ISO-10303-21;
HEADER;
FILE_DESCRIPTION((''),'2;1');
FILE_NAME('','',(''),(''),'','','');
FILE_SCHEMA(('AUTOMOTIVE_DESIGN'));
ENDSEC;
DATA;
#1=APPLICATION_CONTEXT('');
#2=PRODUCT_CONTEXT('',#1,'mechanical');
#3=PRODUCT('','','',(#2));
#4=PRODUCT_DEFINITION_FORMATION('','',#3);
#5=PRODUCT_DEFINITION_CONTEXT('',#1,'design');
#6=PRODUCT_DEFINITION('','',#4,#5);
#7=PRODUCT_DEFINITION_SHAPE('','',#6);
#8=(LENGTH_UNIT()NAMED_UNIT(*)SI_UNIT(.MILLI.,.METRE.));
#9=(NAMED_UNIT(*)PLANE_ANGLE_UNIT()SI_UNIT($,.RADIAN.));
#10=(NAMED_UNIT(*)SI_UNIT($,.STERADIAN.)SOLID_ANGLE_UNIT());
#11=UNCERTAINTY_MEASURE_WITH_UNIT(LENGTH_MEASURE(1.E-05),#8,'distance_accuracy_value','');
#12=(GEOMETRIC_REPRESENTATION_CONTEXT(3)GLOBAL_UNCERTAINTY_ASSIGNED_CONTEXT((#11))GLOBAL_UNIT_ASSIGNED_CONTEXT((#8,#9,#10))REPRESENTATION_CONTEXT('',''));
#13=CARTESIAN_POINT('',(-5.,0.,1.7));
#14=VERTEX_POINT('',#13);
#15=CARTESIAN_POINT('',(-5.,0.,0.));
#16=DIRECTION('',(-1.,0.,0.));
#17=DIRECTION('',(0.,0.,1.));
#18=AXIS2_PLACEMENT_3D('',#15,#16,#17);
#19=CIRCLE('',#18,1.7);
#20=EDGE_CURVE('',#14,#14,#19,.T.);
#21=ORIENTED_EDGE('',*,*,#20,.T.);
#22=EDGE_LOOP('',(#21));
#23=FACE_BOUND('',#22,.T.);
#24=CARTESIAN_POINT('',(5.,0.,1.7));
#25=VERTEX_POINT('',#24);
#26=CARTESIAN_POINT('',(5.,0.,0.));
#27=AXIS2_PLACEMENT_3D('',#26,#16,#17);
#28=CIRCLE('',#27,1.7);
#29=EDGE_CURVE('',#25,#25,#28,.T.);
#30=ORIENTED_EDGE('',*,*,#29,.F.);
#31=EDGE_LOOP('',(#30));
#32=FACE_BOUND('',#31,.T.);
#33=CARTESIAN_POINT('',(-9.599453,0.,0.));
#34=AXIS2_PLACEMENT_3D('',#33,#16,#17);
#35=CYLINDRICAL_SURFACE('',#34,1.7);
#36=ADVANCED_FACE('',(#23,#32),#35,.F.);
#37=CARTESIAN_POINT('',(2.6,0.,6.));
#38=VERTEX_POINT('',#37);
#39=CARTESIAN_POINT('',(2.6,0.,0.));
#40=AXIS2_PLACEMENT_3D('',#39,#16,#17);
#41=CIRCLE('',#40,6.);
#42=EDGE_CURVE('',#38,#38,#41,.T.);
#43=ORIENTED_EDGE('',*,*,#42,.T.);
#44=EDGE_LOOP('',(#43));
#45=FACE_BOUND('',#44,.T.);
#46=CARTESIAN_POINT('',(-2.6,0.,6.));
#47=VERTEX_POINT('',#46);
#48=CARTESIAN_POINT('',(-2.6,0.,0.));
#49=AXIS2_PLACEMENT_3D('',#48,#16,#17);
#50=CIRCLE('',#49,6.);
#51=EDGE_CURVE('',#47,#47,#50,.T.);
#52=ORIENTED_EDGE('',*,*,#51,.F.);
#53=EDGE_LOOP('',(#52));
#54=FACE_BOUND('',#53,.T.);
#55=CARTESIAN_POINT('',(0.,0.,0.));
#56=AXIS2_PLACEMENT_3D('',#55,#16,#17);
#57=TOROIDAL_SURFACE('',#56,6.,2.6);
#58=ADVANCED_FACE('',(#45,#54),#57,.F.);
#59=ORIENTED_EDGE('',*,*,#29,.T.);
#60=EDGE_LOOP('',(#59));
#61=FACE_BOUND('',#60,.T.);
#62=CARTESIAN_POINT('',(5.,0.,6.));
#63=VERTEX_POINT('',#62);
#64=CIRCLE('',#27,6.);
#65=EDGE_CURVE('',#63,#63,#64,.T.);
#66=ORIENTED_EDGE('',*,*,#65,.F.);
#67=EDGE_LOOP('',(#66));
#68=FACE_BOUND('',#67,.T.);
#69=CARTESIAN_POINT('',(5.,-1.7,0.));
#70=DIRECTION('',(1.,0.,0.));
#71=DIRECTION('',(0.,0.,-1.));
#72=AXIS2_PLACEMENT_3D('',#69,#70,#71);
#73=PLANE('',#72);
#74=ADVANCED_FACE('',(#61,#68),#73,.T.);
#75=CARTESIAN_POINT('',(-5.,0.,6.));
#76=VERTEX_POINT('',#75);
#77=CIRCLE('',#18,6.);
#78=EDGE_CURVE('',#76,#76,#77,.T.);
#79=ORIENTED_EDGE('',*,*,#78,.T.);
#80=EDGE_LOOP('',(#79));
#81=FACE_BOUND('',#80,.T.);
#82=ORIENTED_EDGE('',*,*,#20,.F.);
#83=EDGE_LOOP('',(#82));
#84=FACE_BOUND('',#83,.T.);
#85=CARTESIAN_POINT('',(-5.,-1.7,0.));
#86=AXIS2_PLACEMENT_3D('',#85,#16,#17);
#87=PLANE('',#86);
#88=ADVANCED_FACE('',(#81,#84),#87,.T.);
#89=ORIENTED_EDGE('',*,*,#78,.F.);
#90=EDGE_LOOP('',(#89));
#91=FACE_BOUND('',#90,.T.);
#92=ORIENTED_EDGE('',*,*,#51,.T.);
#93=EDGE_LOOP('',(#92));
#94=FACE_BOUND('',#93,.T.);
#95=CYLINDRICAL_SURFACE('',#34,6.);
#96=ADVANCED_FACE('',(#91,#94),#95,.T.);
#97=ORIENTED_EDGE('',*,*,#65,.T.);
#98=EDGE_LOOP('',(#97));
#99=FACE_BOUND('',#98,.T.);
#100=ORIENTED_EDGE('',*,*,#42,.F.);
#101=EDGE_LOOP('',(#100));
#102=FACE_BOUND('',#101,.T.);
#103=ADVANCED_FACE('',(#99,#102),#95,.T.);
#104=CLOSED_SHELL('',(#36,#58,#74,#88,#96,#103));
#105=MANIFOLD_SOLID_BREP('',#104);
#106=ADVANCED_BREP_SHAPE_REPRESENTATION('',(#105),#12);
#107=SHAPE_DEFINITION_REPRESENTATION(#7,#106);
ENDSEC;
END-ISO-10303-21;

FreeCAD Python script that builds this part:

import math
import FreeCAD as App
import Part
import Sketcher

doc = App.newDocument("Part")
body = doc.addObject("PartDesign::Body", "Body")

# Sketch on XY plane
sketch1 = body.newObject("Sketcher::SketchObject", "Sketch")
sketch1.AttachmentSupport = (doc.getObject("XY_Plane"), [""])
sketch1.MapMode = "FlatFace"
sketch1.addGeometry([
    Part.LineSegment(App.Vector(-5, -6, 0), App.Vector(-2.6, -6, 0)),  # 0
    Part.ArcOfCircle(Part.Circle(App.Vector(0, -6, 0), App.Vector(0, 0, 1), 2.6), math.radians(0), math.radians(180)),  # 1
    Part.LineSegment(App.Vector(2.6, -6, 0), App.Vector(5, -6, 0)),  # 2
    Part.LineSegment(App.Vector(5, -6, 0), App.Vector(5, -1.7, 0)),  # 3
    Part.LineSegment(App.Vector(5, -1.7, 0), App.Vector(-5, -1.7, 0)),  # 4
    Part.LineSegment(App.Vector(-5, -1.7, 0), App.Vector(-5, -6, 0)),  # 5
], False)
sketch1.addConstraint([
    Sketcher.Constraint("Coincident", 0, 2, 1, 2),
    Sketcher.Constraint("Coincident", 1, 1, 2, 1),
    Sketcher.Constraint("Coincident", 2, 2, 3, 1),
    Sketcher.Constraint("Coincident", 3, 2, 4, 1),
    Sketcher.Constraint("Coincident", 4, 2, 5, 1),
    Sketcher.Constraint("Coincident", 5, 2, 0, 1),
    Sketcher.Constraint("Horizontal", 0),
    Sketcher.Constraint("Horizontal", 2),
    Sketcher.Constraint("Vertical", 3),
    Sketcher.Constraint("Horizontal", 4),
    Sketcher.Constraint("Vertical", 5),
    Sketcher.Constraint("Symmetric", 0, 2, 1, 1, -2),
    Sketcher.Constraint("Horizontal", 1, 3, 0, 2),
    Sketcher.Constraint("Equal", 0, 2),
    Sketcher.Constraint("Radius", 1, 2.6),
    Sketcher.Constraint("DistanceX", 4, 2, 4, 1, 10.0),
    Sketcher.Constraint("DistanceY", 3, 1, 3, 2, 4.3),
    Sketcher.Constraint("DistanceY", 1, 3, -1, 1, 6.0),
])
revolution = body.newObject("PartDesign::Revolution", "Revolution")
revolution.Profile = sketch1
revolution.ReferenceAxis = (sketch1, ["H_Axis"])
revolution.Angle = 360

doc.recompute()
